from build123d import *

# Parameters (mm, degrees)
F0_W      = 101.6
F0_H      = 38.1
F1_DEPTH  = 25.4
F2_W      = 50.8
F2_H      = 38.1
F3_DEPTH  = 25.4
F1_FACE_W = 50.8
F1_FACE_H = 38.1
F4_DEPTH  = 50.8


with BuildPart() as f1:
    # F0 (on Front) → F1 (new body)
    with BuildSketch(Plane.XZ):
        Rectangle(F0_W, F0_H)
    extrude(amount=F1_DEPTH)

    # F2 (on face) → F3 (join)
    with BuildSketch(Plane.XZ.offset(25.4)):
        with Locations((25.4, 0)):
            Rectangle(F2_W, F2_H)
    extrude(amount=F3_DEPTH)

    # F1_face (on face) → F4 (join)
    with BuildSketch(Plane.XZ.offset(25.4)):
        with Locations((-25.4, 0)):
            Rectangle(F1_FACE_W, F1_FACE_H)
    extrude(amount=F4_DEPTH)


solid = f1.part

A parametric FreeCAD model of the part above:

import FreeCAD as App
import Part
import Sketcher
from FreeCAD import Vector
Q = App.Units.Quantity


def add_polygon(sketch, points):
    """Adds a closed chain of lines whose ends are joined by coincident constraints."""
    first, n = sketch.GeometryCount, len(points)
    for a, b in zip(points, points[1:] + points[:1]):
        sketch.addGeometry(Part.LineSegment(App.Vector(*a, 0), App.Vector(*b, 0)), False)
    for i in range(n):
        sketch.addConstraint(Sketcher.Constraint("Coincident", first + i, 2, first + (i + 1) % n, 1))

doc = App.newDocument("Part")
body = doc.addObject("PartDesign::Body", "Body")

# Sketch on XZ plane
sketch1 = body.newObject("Sketcher::SketchObject", "Sketch")
sketch1.AttachmentSupport = (doc.getObject("XZ_Plane"), [""])
sketch1.MapMode = "FlatFace"
add_polygon(sketch1, [(-51, 19), (-51, -19), (51, -19), (51, 19)])  # lines 0-3
sketch1.addConstraint([
    Sketcher.Constraint("Vertical", 0),
    Sketcher.Constraint("Horizontal", 1),
    Sketcher.Constraint("Vertical", 2),
    Sketcher.Constraint("Horizontal", 3),
    Sketcher.Constraint("Symmetric", 0, 2, 2, 2, -1, 1),
    Sketcher.Constraint("DistanceX", 1, 1, 1, 2, Q("4 in")),
    Sketcher.Constraint("DistanceY", 0, 2, 0, 1, Q("1.5 in")),
])
pad1 = body.newObject("PartDesign::Pad", "Pad")
pad1.Profile = sketch1
pad1.Length = Q("1 in")

# Sketch on XZ plane
sketch2 = body.newObject("Sketcher::SketchObject", "Sketch001")
sketch2.AttachmentSupport = (doc.getObject("XZ_Plane"), [""])
sketch2.MapMode = "FlatFace"
sketch2.AttachmentOffset = App.Placement(Vector(0, 0, 1 * 25.4), App.Rotation())
add_polygon(sketch2, [(0, 19), (0, -19), (51, -19), (51, 19)])  # lines 0-3
sketch2.addConstraint([
    Sketcher.Constraint("Vertical", 0),
    Sketcher.Constraint("Horizontal", 1),
    Sketcher.Constraint("Vertical", 2),
    Sketcher.Constraint("Horizontal", 3),
    Sketcher.Constraint("Symmetric", 0, 2, 3, 2, -1, 1),
    Sketcher.Constraint("DistanceX", 1, 1, 1, 2, Q("2 in")),
    Sketcher.Constraint("DistanceY", 0, 2, 0, 1, Q("1.5 in")),
])
pad2 = body.newObject("PartDesign::Pad", "Pad001")
pad2.Profile = sketch2
pad2.Length = Q("1 in")

# Sketch on XZ plane
sketch3 = body.newObject("Sketcher::SketchObject", "Sketch002")
sketch3.AttachmentSupport = (doc.getObject("XZ_Plane"), [""])
sketch3.MapMode = "FlatFace"
sketch3.AttachmentOffset = App.Placement(Vector(0, 0, 1 * 25.4), App.Rotation())
add_polygon(sketch3, [(-51, 19), (-51, -19), (0, -19), (0, 19)])  # lines 0-3
sketch3.addConstraint([
    Sketcher.Constraint("Vertical", 0),
    Sketcher.Constraint("Horizontal", 1),
    Sketcher.Constraint("Vertical", 2),
    Sketcher.Constraint("Horizontal", 3),
    Sketcher.Constraint("Symmetric", 1, 2, 2, 2, -1, 1),
    Sketcher.Constraint("DistanceX", 1, 1, 1, 2, Q("2 in")),
    Sketcher.Constraint("DistanceY", 0, 2, 0, 1, Q("1.5 in")),
])
pad3 = body.newObject("PartDesign::Pad", "Pad002")
pad3.Profile = sketch3
pad3.Length = Q("2 in")

doc.recompute()
